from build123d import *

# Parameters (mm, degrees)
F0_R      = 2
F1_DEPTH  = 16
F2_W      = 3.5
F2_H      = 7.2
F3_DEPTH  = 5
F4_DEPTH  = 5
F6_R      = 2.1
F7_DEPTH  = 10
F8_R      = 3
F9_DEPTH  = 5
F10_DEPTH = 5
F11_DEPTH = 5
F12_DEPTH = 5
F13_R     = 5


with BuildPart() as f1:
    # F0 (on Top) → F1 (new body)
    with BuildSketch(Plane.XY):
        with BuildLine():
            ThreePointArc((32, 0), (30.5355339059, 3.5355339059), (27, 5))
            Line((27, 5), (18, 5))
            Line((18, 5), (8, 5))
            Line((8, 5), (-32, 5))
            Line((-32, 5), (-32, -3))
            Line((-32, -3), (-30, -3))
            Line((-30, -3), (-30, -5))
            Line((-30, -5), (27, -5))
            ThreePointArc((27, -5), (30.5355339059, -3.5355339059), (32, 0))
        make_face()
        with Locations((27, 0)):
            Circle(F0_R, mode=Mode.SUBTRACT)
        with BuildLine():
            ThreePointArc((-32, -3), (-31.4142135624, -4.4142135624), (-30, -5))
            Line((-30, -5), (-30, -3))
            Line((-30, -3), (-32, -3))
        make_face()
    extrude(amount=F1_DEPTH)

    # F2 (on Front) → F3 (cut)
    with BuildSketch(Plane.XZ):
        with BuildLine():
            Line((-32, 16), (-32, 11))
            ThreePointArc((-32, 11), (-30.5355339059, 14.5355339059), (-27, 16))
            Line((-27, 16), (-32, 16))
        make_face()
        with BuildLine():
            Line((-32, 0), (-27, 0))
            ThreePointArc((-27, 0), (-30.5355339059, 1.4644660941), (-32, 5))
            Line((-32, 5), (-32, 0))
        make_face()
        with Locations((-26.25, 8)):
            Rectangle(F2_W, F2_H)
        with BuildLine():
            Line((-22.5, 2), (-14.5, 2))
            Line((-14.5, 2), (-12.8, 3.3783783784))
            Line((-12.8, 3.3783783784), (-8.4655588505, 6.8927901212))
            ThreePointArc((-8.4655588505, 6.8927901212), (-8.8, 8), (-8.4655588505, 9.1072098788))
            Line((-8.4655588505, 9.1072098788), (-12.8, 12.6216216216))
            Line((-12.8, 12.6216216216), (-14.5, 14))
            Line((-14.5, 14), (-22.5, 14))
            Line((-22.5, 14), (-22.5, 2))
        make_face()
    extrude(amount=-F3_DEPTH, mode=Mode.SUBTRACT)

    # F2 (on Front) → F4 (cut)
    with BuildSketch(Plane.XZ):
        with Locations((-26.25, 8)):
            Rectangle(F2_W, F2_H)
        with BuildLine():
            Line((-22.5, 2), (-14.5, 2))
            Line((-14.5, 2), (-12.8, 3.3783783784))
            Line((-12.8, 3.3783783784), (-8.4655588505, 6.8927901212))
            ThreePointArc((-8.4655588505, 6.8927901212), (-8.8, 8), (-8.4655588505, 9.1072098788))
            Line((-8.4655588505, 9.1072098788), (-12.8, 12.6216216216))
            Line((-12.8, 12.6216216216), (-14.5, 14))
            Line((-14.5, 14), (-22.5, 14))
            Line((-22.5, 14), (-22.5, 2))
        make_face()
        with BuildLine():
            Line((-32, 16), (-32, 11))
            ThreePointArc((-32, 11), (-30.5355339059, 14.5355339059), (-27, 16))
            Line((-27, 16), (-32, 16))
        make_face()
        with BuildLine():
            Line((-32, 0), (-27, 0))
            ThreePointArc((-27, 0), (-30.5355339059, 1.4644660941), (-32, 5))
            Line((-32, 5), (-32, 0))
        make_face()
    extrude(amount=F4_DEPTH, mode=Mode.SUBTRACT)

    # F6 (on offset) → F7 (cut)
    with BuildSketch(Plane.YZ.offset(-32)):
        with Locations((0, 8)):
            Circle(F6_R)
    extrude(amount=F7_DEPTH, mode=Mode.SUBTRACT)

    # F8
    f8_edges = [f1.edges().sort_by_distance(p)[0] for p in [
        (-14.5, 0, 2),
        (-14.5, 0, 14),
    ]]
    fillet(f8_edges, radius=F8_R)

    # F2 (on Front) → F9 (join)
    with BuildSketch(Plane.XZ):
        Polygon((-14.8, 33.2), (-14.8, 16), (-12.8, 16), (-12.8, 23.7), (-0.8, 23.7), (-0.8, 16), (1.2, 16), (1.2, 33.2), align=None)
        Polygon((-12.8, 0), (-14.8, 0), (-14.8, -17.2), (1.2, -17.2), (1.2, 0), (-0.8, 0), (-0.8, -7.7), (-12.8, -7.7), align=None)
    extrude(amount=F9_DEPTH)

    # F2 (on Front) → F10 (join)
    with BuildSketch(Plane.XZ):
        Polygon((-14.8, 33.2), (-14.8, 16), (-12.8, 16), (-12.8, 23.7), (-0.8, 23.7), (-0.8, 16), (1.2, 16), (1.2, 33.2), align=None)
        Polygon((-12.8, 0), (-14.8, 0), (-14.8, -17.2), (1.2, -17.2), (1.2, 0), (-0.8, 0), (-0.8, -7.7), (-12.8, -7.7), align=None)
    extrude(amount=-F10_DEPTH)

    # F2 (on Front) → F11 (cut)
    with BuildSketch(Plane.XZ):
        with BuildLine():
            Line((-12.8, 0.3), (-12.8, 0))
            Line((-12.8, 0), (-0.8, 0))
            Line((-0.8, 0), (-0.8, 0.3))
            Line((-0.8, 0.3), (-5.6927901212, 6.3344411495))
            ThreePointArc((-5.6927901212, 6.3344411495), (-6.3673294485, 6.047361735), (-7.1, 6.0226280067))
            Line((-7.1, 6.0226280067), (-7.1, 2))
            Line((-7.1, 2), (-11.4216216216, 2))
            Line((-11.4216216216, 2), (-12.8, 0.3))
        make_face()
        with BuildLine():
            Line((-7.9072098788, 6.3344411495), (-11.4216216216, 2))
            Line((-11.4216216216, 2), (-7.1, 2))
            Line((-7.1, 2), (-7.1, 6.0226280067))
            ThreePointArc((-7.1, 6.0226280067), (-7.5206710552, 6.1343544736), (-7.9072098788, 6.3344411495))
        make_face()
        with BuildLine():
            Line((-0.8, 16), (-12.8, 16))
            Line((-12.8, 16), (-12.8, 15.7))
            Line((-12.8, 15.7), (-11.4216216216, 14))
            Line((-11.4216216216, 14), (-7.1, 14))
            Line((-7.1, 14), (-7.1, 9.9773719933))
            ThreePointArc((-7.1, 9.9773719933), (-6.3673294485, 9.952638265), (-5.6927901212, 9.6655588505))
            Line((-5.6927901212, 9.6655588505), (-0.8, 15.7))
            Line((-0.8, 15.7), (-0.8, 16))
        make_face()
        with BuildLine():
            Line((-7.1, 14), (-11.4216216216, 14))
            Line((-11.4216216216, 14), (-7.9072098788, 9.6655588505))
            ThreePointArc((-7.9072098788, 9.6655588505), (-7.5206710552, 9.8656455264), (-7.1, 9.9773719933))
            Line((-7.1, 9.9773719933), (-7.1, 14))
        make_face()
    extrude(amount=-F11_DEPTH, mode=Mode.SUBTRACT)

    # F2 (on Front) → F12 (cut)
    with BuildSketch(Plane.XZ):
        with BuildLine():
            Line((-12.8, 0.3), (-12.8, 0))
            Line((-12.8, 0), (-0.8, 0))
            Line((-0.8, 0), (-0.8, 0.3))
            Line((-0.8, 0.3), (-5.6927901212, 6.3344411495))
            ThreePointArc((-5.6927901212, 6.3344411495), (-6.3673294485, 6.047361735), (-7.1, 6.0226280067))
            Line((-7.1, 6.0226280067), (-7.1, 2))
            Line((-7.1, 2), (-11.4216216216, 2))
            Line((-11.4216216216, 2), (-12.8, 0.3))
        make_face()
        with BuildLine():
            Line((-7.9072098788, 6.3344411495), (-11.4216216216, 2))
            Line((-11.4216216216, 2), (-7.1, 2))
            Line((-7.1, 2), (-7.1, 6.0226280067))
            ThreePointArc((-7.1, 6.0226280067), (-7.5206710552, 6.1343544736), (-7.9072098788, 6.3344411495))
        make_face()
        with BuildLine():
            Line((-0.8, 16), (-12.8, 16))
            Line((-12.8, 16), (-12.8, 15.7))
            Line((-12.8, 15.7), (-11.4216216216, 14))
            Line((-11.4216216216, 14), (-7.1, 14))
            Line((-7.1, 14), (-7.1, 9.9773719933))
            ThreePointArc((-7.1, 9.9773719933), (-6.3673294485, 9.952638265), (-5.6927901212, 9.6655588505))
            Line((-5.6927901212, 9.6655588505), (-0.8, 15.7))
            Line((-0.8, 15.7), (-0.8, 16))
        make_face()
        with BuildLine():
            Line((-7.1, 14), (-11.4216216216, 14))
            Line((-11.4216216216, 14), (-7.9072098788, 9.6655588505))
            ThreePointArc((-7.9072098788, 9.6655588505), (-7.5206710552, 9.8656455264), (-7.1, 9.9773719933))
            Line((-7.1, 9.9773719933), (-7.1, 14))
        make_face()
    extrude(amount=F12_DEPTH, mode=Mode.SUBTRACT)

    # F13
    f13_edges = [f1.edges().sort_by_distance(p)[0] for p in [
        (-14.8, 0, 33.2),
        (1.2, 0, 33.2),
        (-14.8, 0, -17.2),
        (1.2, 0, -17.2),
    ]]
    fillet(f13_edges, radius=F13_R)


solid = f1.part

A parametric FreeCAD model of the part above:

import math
import FreeCAD as App
import Part
import Sketcher
from FreeCAD import Vector


def edges_at(feature, points):
    """Names of the edges that pass closest to the given points."""
    edges = feature.Shape.Edges
    near = lambda p: min(range(len(edges)), key=lambda i: edges[i].distToShape(Part.Vertex(*p))[0])
    return sorted({f"Edge{near(p) + 1}" for p in points})

doc = App.newDocument("Part")
params = doc.addObject("Spreadsheet::Sheet", "Params")
for row, (alias, value) in enumerate([
    ("sketch1_diameter", "4 mm"),
    ("sketch1_radius", "5 mm"),
    ("sketch1_width", "59 mm"),
    ("pad1_length", "16 mm"),
    ("sketch2_radius", "5 mm"),
    ("sketch2_radius2", "2 mm"),
    ("sketch2_width", "8 mm"),
    ("sketch2_height", "12 mm"),
    ("sketch2_width2", "3.5 mm"),
    ("pocket1_length", "5 mm"),
    ("sketch3_radius", "2 mm"),
    ("sketch3_radius2", "5 mm"),
    ("sketch3_width", "8 mm"),
    ("sketch3_height", "12 mm"),
    ("sketch3_width2", "3.5 mm"),
    ("pocket2_length", "5 mm"),
    ("sketch4_diameter", "4.2 mm"),
    ("pocket3_length", "10 mm"),
    ("fillet_radius", "3 mm"),
    ("sketch5_width", "2 mm"),
    ("sketch5_width2", "12 mm"),
    ("sketch5_height", "17.2 mm"),
    ("sketch5_height2", "7.7 mm"),
    ("pad2_length", "5 mm"),
    ("sketch6_width", "2 mm"),
    ("sketch6_width2", "12 mm"),
    ("sketch6_height", "17.2 mm"),
    ("sketch6_height2", "7.7 mm"),
    ("pad3_length", "5 mm"),
    ("sketch7_radius", "2 mm"),
    ("sketch7_width", "12 mm"),
    ("sketch7_height", "0.3 mm"),
    ("pocket4_length", "5 mm"),
    ("sketch8_radius", "2 mm"),
    ("sketch8_width", "12 mm"),
    ("sketch8_height", "0.3 mm"),
    ("pocket5_length", "5 mm"),
    ("fillet2_radius", "5 mm"),
], start=1):
    params.set(f"A{row}", alias)
    params.set(f"B{row}", "=" + value)
    params.setAlias(f"B{row}", alias)

body = doc.addObject("PartDesign::Body", "Body")

# Sketch on XY plane
sketch1 = body.newObject("Sketcher::SketchObject", "Sketch")
sketch1.AttachmentSupport = (doc.getObject("XY_Plane"), [""])
sketch1.MapMode = "FlatFace"
sketch1.addGeometry(Part.ArcOfCircle(Part.Circle(Vector(27, 0, 0), Vector(0, 0, 1), 5), math.radians(0), math.radians(90)), False)
sketch1.addGeometry(Part.LineSegment(Vector(27, 5, 0), Vector(-32, 5, 0)), False)
sketch1.addGeometry(Part.LineSegment(Vector(-32, 5, 0), Vector(-32, -3, 0)), False)
sketch1.addGeometry(Part.ArcOfCircle(Part.Circle(Vector(-30, -3, 0), Vector(0, 0, 1), 2), math.radians(180), math.radians(270)), False)
sketch1.addGeometry(Part.LineSegment(Vector(-30, -5, 0), Vector(27, -5, 0)), False)
sketch1.addGeometry(Part.ArcOfCircle(Part.Circle(Vector(27, 0, 0), Vector(0, 0, 1), 5), math.radians(-90), math.radians(0)), False)
sketch1.addGeometry(Part.Circle(Vector(27, 0, 0), Vector(0, 0, 1), 2), False)
sketch1.addConstraint(Sketcher.Constraint("Tangent", 0, 2, 1, 1))
sketch1.addConstraint(Sketcher.Constraint("Coincident", 1, 2, 2, 1))
sketch1.addConstraint(Sketcher.Constraint("Tangent", 2, 2, 3, 1))
sketch1.addConstraint(Sketcher.Constraint("Tangent", 3, 2, 4, 1))
sketch1.addConstraint(Sketcher.Constraint("Tangent", 4, 2, 5, 1))
sketch1.addConstraint(Sketcher.Constraint("Tangent", 5, 2, 0, 1))
sketch1.addConstraint(Sketcher.Constraint("Horizontal", 1))
sketch1.addConstraint(Sketcher.Constraint("Vertical", 2))
sketch1.addConstraint(Sketcher.Constraint("Horizontal", 4))
sketch1.addConstraint(Sketcher.Constraint("Coincident", 6, 3, 0, 3))
sketch1.addConstraint(Sketcher.Constraint("Equal", 0, 5))
sketch1.addConstraint(Sketcher.Constraint("Equal", 3, 6))
sketch1.addConstraint(Sketcher.Constraint("PointOnObject", 0, 3, -1))
sketch1.addConstraint(Sketcher.Constraint("PointOnObject", 5, 2, -1))
sketch1.addConstraint(Sketcher.Constraint("Diameter", 6, 4.0))
sketch1.addConstraint(Sketcher.Constraint("Radius", 0, 5.0))
sketch1.addConstraint(Sketcher.Constraint("DistanceX", 1, 2, 1, 1, 59.0))
sketch1.addConstraint(Sketcher.Constraint("DistanceX", -1, 1, 0, 3, 27.0))
sketch1.setExpression("Constraints[14]", "Params.sketch1_diameter")
sketch1.setExpression("Constraints[15]", "Params.sketch1_radius")
sketch1.setExpression("Constraints[16]", "Params.sketch1_width")
pad1 = body.newObject("PartDesign::Pad", "Pad")
pad1.Profile = sketch1
pad1.setExpression("Length", "Params.pad1_length")

# Sketch on XZ plane
sketch2 = body.newObject("Sketcher::SketchObject", "Sketch001")
sketch2.AttachmentSupport = (doc.getObject("XZ_Plane"), [""])
sketch2.MapMode = "FlatFace"
sketch2.addGeometry(Part.LineSegment(Vector(-32, 16, 0), Vector(-32, 11, 0)), False)
sketch2.addGeometry(Part.ArcOfCircle(Part.Circle(Vector(-27, 11, 0), Vector(0, 0, 1), 5), math.radians(90), math.radians(180)), False)
sketch2.addGeometry(Part.LineSegment(Vector(-27, 16, 0), Vector(-32, 16, 0)), False)
sketch2.addGeometry(Part.LineSegment(Vector(-32, 0, 0), Vector(-27, 0, 0)), False)
sketch2.addGeometry(Part.ArcOfCircle(Part.Circle(Vector(-27, 5, 0), Vector(0, 0, 1), 5), math.radians(180), math.radians(270)), False)
sketch2.addGeometry(Part.LineSegment(Vector(-32, 5, 0), Vector(-32, 0, 0)), False)
sketch2.addGeometry(Part.LineSegment(Vector(-28, 11.6, 0), Vector(-28, 4.4, 0)), False)
sketch2.addGeometry(Part.LineSegment(Vector(-28, 4.4, 0), Vector(-24.5, 4.4, 0)), False)
sketch2.addGeometry(Part.LineSegment(Vector(-24.5, 4.4, 0), Vector(-24.5, 11.6, 0)), False)
sketch2.addGeometry(Part.LineSegment(Vector(-24.5, 11.6, 0), Vector(-28, 11.6, 0)), False)
sketch2.addGeometry(Part.LineSegment(Vector(-22.5, 2, 0), Vector(-14.5, 2, 0)), False)
sketch2.addGeometry(Part.LineSegment(Vector(-14.5, 2, 0), Vector(-12.8, 3.378378, 0)), False)
sketch2.addGeometry(Part.LineSegment(Vector(-12.8, 3.378378, 0), Vector(-8.465559, 6.89279, 0)), False)
sketch2.addGeometry(Part.ArcOfCircle(Part.Circle(Vector(-6.8, 8, 0), Vector(0, 0, 1), 2), math.radians(146.38532), math.radians(213.61468)), False)
sketch2.addGeometry(Part.LineSegment(Vector(-8.465559, 9.10721, 0), Vector(-12.8, 12.621622, 0)), False)
sketch2.addGeometry(Part.LineSegment(Vector(-12.8, 12.621622, 0), Vector(-14.5, 14, 0)), False)
sketch2.addGeometry(Part.LineSegment(Vector(-14.5, 14, 0), Vector(-22.5, 14, 0)), False)
sketch2.addGeometry(Part.LineSegment(Vector(-22.5, 14, 0), Vector(-22.5, 2, 0)), False)
sketch2.addConstraint(Sketcher.Constraint("Tangent", 0, 2, 1, 2))
sketch2.addConstraint(Sketcher.Constraint("Tangent", 1, 1, 2, 1))
sketch2.addConstraint(Sketcher.Constraint("Coincident", 2, 2, 0, 1))
sketch2.addConstraint(Sketcher.Constraint("Tangent", 3, 2, 4, 2))
sketch2.addConstraint(Sketcher.Constraint("Tangent", 4, 1, 5, 1))
sketch2.addConstraint(Sketcher.Constraint("Coincident", 5, 2, 3, 1))
sketch2.addConstraint(Sketcher.Constraint("Coincident", 6, 2, 7, 1))
sketch2.addConstraint(Sketcher.Constraint("Coincident", 7, 2, 8, 1))
sketch2.addConstraint(Sketcher.Constraint("Coincident", 8, 2, 9, 1))
sketch2.addConstraint(Sketcher.Constraint("Coincident", 9, 2, 6, 1))
sketch2.addConstraint(Sketcher.Constraint("Coincident", 10, 2, 11, 1))
sketch2.addConstraint(Sketcher.Constraint("Coincident", 11, 2, 12, 1))
sketch2.addConstraint(Sketcher.Constraint("Coincident", 12, 2, 13, 2))
sketch2.addConstraint(Sketcher.Constraint("Coincident", 13, 1, 14, 1))
sketch2.addConstraint(Sketcher.Constraint("Coincident", 14, 2, 15, 1))
sketch2.addConstraint(Sketcher.Constraint("Coincident", 15, 2, 16, 1))
sketch2.addConstraint(Sketcher.Constraint("Coincident", 16, 2, 17, 1))
sketch2.addConstraint(Sketcher.Constraint("Coincident", 17, 2, 10, 1))
sketch2.addConstraint(Sketcher.Constraint("Vertical", 0))
sketch2.addConstraint(Sketcher.Constraint("Horizontal", 2))
sketch2.addConstraint(Sketcher.Constraint("Horizontal", 3))
sketch2.addConstraint(Sketcher.Constraint("Vertical", 5))
sketch2.addConstraint(Sketcher.Constraint("Vertical", 6))
sketch2.addConstraint(Sketcher.Constraint("Horizontal", 7))
sketch2.addConstraint(Sketcher.Constraint("Vertical", 8))
sketch2.addConstraint(Sketcher.Constraint("Horizontal", 9))
sketch2.addConstraint(Sketcher.Constraint("Horizontal", 10))
sketch2.addConstraint(Sketcher.Constraint("Horizontal", 16))
sketch2.addConstraint(Sketcher.Constraint("Vertical", 17))
sketch2.addConstraint(Sketcher.Constraint("Equal", 1, 4))
sketch2.addConstraint(Sketcher.Constraint("PointOnObject", 3, 2, -1))
sketch2.addConstraint(Sketcher.Constraint("Parallel", 11, 12))
sketch2.addConstraint(Sketcher.Constraint("Parallel", 14, 15))
sketch2.addConstraint(Sketcher.Constraint("Vertical", 1, 3, 4, 3))
sketch2.addConstraint(Sketcher.Constraint("Vertical", 12, 2, 13, 1))
sketch2.addConstraint(Sketcher.Constraint("Vertical", 11, 2, 14, 2))
sketch2.addConstraint(Sketcher.Constraint("Vertical", 10, 2, 15, 2))
sketch2.addConstraint(Sketcher.Constraint("Equal", 12, 14))
sketch2.addConstraint(Sketcher.Constraint("Radius", 1, 5.0))
sketch2.addConstraint(Sketcher.Constraint("Radius", 13, 2.0))
sketch2.addConstraint(Sketcher.Constraint("DistanceX", 10, 1, 10, 2, 8.0))
sketch2.addConstraint(Sketcher.Constraint("DistanceY", 17, 2, 17, 1, 12.0))
sketch2.addConstraint(Sketcher.Constraint("DistanceX", 7, 1, 7, 2, 3.5))
sketch2.addConstraint(Sketcher.Constraint("DistanceY", 6, 2, 6, 1, 7.2))
sketch2.addConstraint(Sketcher.Constraint("DistanceX", 1, 3, -1, 1, 27.0))
sketch2.addConstraint(Sketcher.Constraint("DistanceY", -1, 1, 1, 3, 11.0))
sketch2.addConstraint(Sketcher.Constraint("DistanceY", -1, 1, 13, 3, 8.0))
sketch2.addConstraint(Sketcher.Constraint("DistanceX", 6, 2, -1, 1, 28.0))
sketch2.addConstraint(Sketcher.Constraint("DistanceX", 7, 2, 10, 2, 10.0))
sketch2.addConstraint(Sketcher.Constraint("DistanceX", 11, 2, 13, 3, 6.0))
sketch2.addConstraint(Sketcher.Constraint("DistanceX", 13, 3, -1, 1, 6.8))
sketch2.addConstraint(Sketcher.Constraint("DistanceY", -1, 1, 6, 2, 4.4))
sketch2.addConstraint(Sketcher.Constraint("Distance", 11, 2.18859))
sketch2.setExpression("Constraints[38]", "Params.sketch2_radius")
sketch2.setExpression("Constraints[39]", "Params.sketch2_radius2")
sketch2.setExpression("Constraints[40]", "Params.sketch2_width")
sketch2.setExpression("Constraints[41]", "Params.sketch2_height")
sketch2.setExpression("Constraints[42]", "Params.sketch2_width2")
pocket1 = body.newObject("PartDesign::Pocket", "Pocket")
pocket1.Profile = sketch2
pocket1.setExpression("Length", "Params.pocket1_length")

# Sketch on XZ plane
sketch3 = body.newObject("Sketcher::SketchObject", "Sketch002")
sketch3.AttachmentSupport = (doc.getObject("XZ_Plane"), [""])
sketch3.MapMode = "FlatFace"
sketch3.addGeometry(Part.LineSegment(Vector(-28, 11.6, 0), Vector(-28, 4.4, 0)), False)
sketch3.addGeometry(Part.LineSegment(Vector(-28, 4.4, 0), Vector(-24.5, 4.4, 0)), False)
sketch3.addGeometry(Part.LineSegment(Vector(-24.5, 4.4, 0), Vector(-24.5, 11.6, 0)), False)
sketch3.addGeometry(Part.LineSegment(Vector(-24.5, 11.6, 0), Vector(-28, 11.6, 0)), False)
sketch3.addGeometry(Part.LineSegment(Vector(-22.5, 2, 0), Vector(-14.5, 2, 0)), False)
sketch3.addGeometry(Part.LineSegment(Vector(-14.5, 2, 0), Vector(-12.8, 3.378378, 0)), False)
sketch3.addGeometry(Part.LineSegment(Vector(-12.8, 3.378378, 0), Vector(-8.465559, 6.89279, 0)), False)
sketch3.addGeometry(Part.ArcOfCircle(Part.Circle(Vector(-6.8, 8, 0), Vector(0, 0, 1), 2), math.radians(146.38532), math.radians(213.61468)), False)
sketch3.addGeometry(Part.LineSegment(Vector(-8.465559, 9.10721, 0), Vector(-12.8, 12.621622, 0)), False)
sketch3.addGeometry(Part.LineSegment(Vector(-12.8, 12.621622, 0), Vector(-14.5, 14, 0)), False)
sketch3.addGeometry(Part.LineSegment(Vector(-14.5, 14, 0), Vector(-22.5, 14, 0)), False)
sketch3.addGeometry(Part.LineSegment(Vector(-22.5, 14, 0), Vector(-22.5, 2, 0)), False)
sketch3.addGeometry(Part.LineSegment(Vector(-32, 16, 0), Vector(-32, 11, 0)), False)
sketch3.addGeometry(Part.ArcOfCircle(Part.Circle(Vector(-27, 11, 0), Vector(0, 0, 1), 5), math.radians(90), math.radians(180)), False)
sketch3.addGeometry(Part.LineSegment(Vector(-27, 16, 0), Vector(-32, 16, 0)), False)
sketch3.addGeometry(Part.LineSegment(Vector(-32, 0, 0), Vector(-27, 0, 0)), False)
sketch3.addGeometry(Part.ArcOfCircle(Part.Circle(Vector(-27, 5, 0), Vector(0, 0, 1), 5), math.radians(180), math.radians(270)), False)
sketch3.addGeometry(Part.LineSegment(Vector(-32, 5, 0), Vector(-32, 0, 0)), False)
sketch3.addConstraint(Sketcher.Constraint("Coincident", 0, 2, 1, 1))
sketch3.addConstraint(Sketcher.Constraint("Coincident", 1, 2, 2, 1))
sketch3.addConstraint(Sketcher.Constraint("Coincident", 2, 2, 3, 1))
sketch3.addConstraint(Sketcher.Constraint("Coincident", 3, 2, 0, 1))
sketch3.addConstraint(Sketcher.Constraint("Coincident", 4, 2, 5, 1))
sketch3.addConstraint(Sketcher.Constraint("Coincident", 5, 2, 6, 1))
sketch3.addConstraint(Sketcher.Constraint("Coincident", 6, 2, 7, 2))
sketch3.addConstraint(Sketcher.Constraint("Coincident", 7, 1, 8, 1))
sketch3.addConstraint(Sketcher.Constraint("Coincident", 8, 2, 9, 1))
sketch3.addConstraint(Sketcher.Constraint("Coincident", 9, 2, 10, 1))
sketch3.addConstraint(Sketcher.Constraint("Coincident", 10, 2, 11, 1))
sketch3.addConstraint(Sketcher.Constraint("Coincident", 11, 2, 4, 1))
sketch3.addConstraint(Sketcher.Constraint("Tangent", 12, 2, 13, 2))
sketch3.addConstraint(Sketcher.Constraint("Tangent", 13, 1, 14, 1))
sketch3.addConstraint(Sketcher.Constraint("Coincident", 14, 2, 12, 1))
sketch3.addConstraint(Sketcher.Constraint("Tangent", 15, 2, 16, 2))
sketch3.addConstraint(Sketcher.Constraint("Tangent", 16, 1, 17, 1))
sketch3.addConstraint(Sketcher.Constraint("Coincident", 17, 2, 15, 1))
sketch3.addConstraint(Sketcher.Constraint("Vertical", 0))
sketch3.addConstraint(Sketcher.Constraint("Horizontal", 1))
sketch3.addConstraint(Sketcher.Constraint("Vertical", 2))
sketch3.addConstraint(Sketcher.Constraint("Horizontal", 3))
sketch3.addConstraint(Sketcher.Constraint("Horizontal", 4))
sketch3.addConstraint(Sketcher.Constraint("Horizontal", 10))
sketch3.addConstraint(Sketcher.Constraint("Vertical", 11))
sketch3.addConstraint(Sketcher.Constraint("Vertical", 12))
sketch3.addConstraint(Sketcher.Constraint("Horizontal", 14))
sketch3.addConstraint(Sketcher.Constraint("Horizontal", 15))
sketch3.addConstraint(Sketcher.Constraint("Vertical", 17))
sketch3.addConstraint(Sketcher.Constraint("Equal", 13, 16))
sketch3.addConstraint(Sketcher.Constraint("PointOnObject", 15, 2, -1))
sketch3.addConstraint(Sketcher.Constraint("Parallel", 5, 6))
sketch3.addConstraint(Sketcher.Constraint("Parallel", 8, 9))
sketch3.addConstraint(Sketcher.Constraint("Vertical", 13, 3, 16, 3))
sketch3.addConstraint(Sketcher.Constraint("Vertical", 6, 2, 7, 1))
sketch3.addConstraint(Sketcher.Constraint("Vertical", 5, 2, 8, 2))
sketch3.addConstraint(Sketcher.Constraint("Vertical", 4, 2, 9, 2))
sketch3.addConstraint(Sketcher.Constraint("Equal", 6, 8))
sketch3.addConstraint(Sketcher.Constraint("Radius", 7, 2.0))
sketch3.addConstraint(Sketcher.Constraint("Radius", 13, 5.0))
sketch3.addConstraint(Sketcher.Constraint("DistanceX", 4, 1, 4, 2, 8.0))
sketch3.addConstraint(Sketcher.Constraint("DistanceY", 11, 2, 11, 1, 12.0))
sketch3.addConstraint(Sketcher.Constraint("DistanceX", 1, 1, 1, 2, 3.5))
sketch3.addConstraint(Sketcher.Constraint("DistanceY", 0, 2, 0, 1, 7.2))
sketch3.addConstraint(Sketcher.Constraint("DistanceY", -1, 1, 7, 3, 8.0))
sketch3.addConstraint(Sketcher.Constraint("DistanceX", 13, 3, -1, 1, 27.0))
sketch3.addConstraint(Sketcher.Constraint("DistanceY", -1, 1, 13, 3, 11.0))
sketch3.addConstraint(Sketcher.Constraint("DistanceX", 0, 2, -1, 1, 28.0))
sketch3.addConstraint(Sketcher.Constraint("DistanceX", 1, 2, 4, 2, 10.0))
sketch3.addConstraint(Sketcher.Constraint("DistanceX", 5, 2, 7, 3, 6.0))
sketch3.addConstraint(Sketcher.Constraint("DistanceX", 7, 3, -1, 1, 6.8))
sketch3.addConstraint(Sketcher.Constraint("DistanceY", -1, 1, 0, 2, 4.4))
sketch3.addConstraint(Sketcher.Constraint("Distance", 5, 2.18859))
sketch3.setExpression("Constraints[38]", "Params.sketch3_radius")
sketch3.setExpression("Constraints[39]", "Params.sketch3_radius2")
sketch3.setExpression("Constraints[40]", "Params.sketch3_width")
sketch3.setExpression("Constraints[41]", "Params.sketch3_height")
sketch3.setExpression("Constraints[42]", "Params.sketch3_width2")
pocket2 = body.newObject("PartDesign::Pocket", "Pocket001")
pocket2.Profile = sketch3
pocket2.setExpression("Length", "Params.pocket2_length")
pocket2.Reversed = True

# Sketch on YZ plane
sketch4 = body.newObject("Sketcher::SketchObject", "Sketch003")
sketch4.AttachmentSupport = (doc.getObject("YZ_Plane"), [""])
sketch4.MapMode = "FlatFace"
sketch4.AttachmentOffset = App.Placement(Vector(0, 0, -32), App.Rotation())
sketch4.addGeometry(Part.Circle(Vector(0, 8, 0), Vector(0, 0, 1), 2.1), False)
sketch4.addConstraint(Sketcher.Constraint("PointOnObject", 0, 3, -2))
sketch4.addConstraint(Sketcher.Constraint("Diameter", 0, 4.2))
sketch4.addConstraint(Sketcher.Constraint("DistanceY", -1, 1, 0, 3, 8.0))
sketch4.setExpression("Constraints[1]", "Params.sketch4_diameter")
pocket3 = body.newObject("PartDesign::Pocket", "Pocket002")
pocket3.Profile = sketch4
pocket3.setExpression("Length", "Params.pocket3_length")
pocket3.Reversed = True
doc.recompute()

fillet = body.newObject("PartDesign::Fillet", "Fillet")
fillet.Base = (pocket3, edges_at(pocket3, [(-14.5, 0, 2), (-14.5, 0, 14)]))
fillet.setExpression("Radius", "Params.fillet_radius")

# Sketch on XZ plane
sketch5 = body.newObject("Sketcher::SketchObject", "Sketch004")
sketch5.AttachmentSupport = (doc.getObject("XZ_Plane"), [""])
sketch5.MapMode = "FlatFace"
sketch5.addGeometry(Part.LineSegment(Vector(-14.8, 33.2, 0), Vector(-14.8, 16, 0)), False)
sketch5.addGeometry(Part.LineSegment(Vector(-14.8, 16, 0), Vector(-12.8, 16, 0)), False)
sketch5.addGeometry(Part.LineSegment(Vector(-12.8, 16, 0), Vector(-12.8, 23.7, 0)), False)
sketch5.addGeometry(Part.LineSegment(Vector(-12.8, 23.7, 0), Vector(-0.8, 23.7, 0)), False)
sketch5.addGeometry(Part.LineSegment(Vector(-0.8, 23.7, 0), Vector(-0.8, 16, 0)), False)
sketch5.addGeometry(Part.LineSegment(Vector(-0.8, 16, 0), Vector(1.2, 16, 0)), False)
sketch5.addGeometry(Part.LineSegment(Vector(1.2, 16, 0), Vector(1.2, 33.2, 0)), False)
sketch5.addGeometry(Part.LineSegment(Vector(1.2, 33.2, 0), Vector(-14.8, 33.2, 0)), False)
sketch5.addGeometry(Part.LineSegment(Vector(-12.8, 0, 0), Vector(-14.8, 0, 0)), False)
sketch5.addGeometry(Part.LineSegment(Vector(-14.8, 0, 0), Vector(-14.8, -17.2, 0)), False)
sketch5.addGeometry(Part.LineSegment(Vector(-14.8, -17.2, 0), Vector(1.2, -17.2, 0)), False)
sketch5.addGeometry(Part.LineSegment(Vector(1.2, -17.2, 0), Vector(1.2, 0, 0)), False)
sketch5.addGeometry(Part.LineSegment(Vector(1.2, 0, 0), Vector(-0.8, 0, 0)), False)
sketch5.addGeometry(Part.LineSegment(Vector(-0.8, 0, 0), Vector(-0.8, -7.7, 0)), False)
sketch5.addGeometry(Part.LineSegment(Vector(-0.8, -7.7, 0), Vector(-12.8, -7.7, 0)), False)
sketch5.addGeometry(Part.LineSegment(Vector(-12.8, -7.7, 0), Vector(-12.8, 0, 0)), False)
sketch5.addConstraint(Sketcher.Constraint("Coincident", 0, 2, 1, 1))
sketch5.addConstraint(Sketcher.Constraint("Coincident", 1, 2, 2, 1))
sketch5.addConstraint(Sketcher.Constraint("Coincident", 2, 2, 3, 1))
sketch5.addConstraint(Sketcher.Constraint("Coincident", 3, 2, 4, 1))
sketch5.addConstraint(Sketcher.Constraint("Coincident", 4, 2, 5, 1))
sketch5.addConstraint(Sketcher.Constraint("Coincident", 5, 2, 6, 1))
sketch5.addConstraint(Sketcher.Constraint("Coincident", 6, 2, 7, 1))
sketch5.addConstraint(Sketcher.Constraint("Coincident", 7, 2, 0, 1))
sketch5.addConstraint(Sketcher.Constraint("Coincident", 8, 2, 9, 1))
sketch5.addConstraint(Sketcher.Constraint("Coincident", 9, 2, 10, 1))
sketch5.addConstraint(Sketcher.Constraint("Coincident", 10, 2, 11, 1))
sketch5.addConstraint(Sketcher.Constraint("Coincident", 11, 2, 12, 1))
sketch5.addConstraint(Sketcher.Constraint("Coincident", 12, 2, 13, 1))
sketch5.addConstraint(Sketcher.Constraint("Coincident", 13, 2, 14, 1))
sketch5.addConstraint(Sketcher.Constraint("Coincident", 14, 2, 15, 1))
sketch5.addConstraint(Sketcher.Constraint("Coincident", 15, 2, 8, 1))
sketch5.addConstraint(Sketcher.Constraint("Vertical", 0))
sketch5.addConstraint(Sketcher.Constraint("Horizontal", 1))
sketch5.addConstraint(Sketcher.Constraint("Vertical", 2))
sketch5.addConstraint(Sketcher.Constraint("Horizontal", 3))
sketch5.addConstraint(Sketcher.Constraint("Vertical", 4))
sketch5.addConstraint(Sketcher.Constraint("Horizontal", 5))
sketch5.addConstraint(Sketcher.Constraint("Vertical", 6))
sketch5.addConstraint(Sketcher.Constraint("Horizontal", 7))
sketch5.addConstraint(Sketcher.Constraint("Horizontal", 8))
sketch5.addConstraint(Sketcher.Constraint("Vertical", 9))
sketch5.addConstraint(Sketcher.Constraint("Horizontal", 10))
sketch5.addConstraint(Sketcher.Constraint("Vertical", 11))
sketch5.addConstraint(Sketcher.Constraint("Horizontal", 12))
sketch5.addConstraint(Sketcher.Constraint("Vertical", 13))
sketch5.addConstraint(Sketcher.Constraint("Horizontal", 14))
sketch5.addConstraint(Sketcher.Constraint("Vertical", 15))
sketch5.addConstraint(Sketcher.Constraint("PointOnObject", 8, 2, -1))
sketch5.addConstraint(Sketcher.Constraint("PointOnObject", 11, 2, -1))
sketch5.addConstraint(Sketcher.Constraint("Horizontal", 1, 2, 4, 2))
sketch5.addConstraint(Sketcher.Constraint("Vertical", 7, 2, 8, 2))
sketch5.addConstraint(Sketcher.Constraint("Vertical", 6, 2, 10, 2))
sketch5.addConstraint(Sketcher.Constraint("Vertical", 4, 2, 12, 2))
sketch5.addConstraint(Sketcher.Constraint("Vertical", 2, 2, 14, 2))
sketch5.addConstraint(Sketcher.Constraint("Equal", 1, 5))
sketch5.addConstraint(Sketcher.Constraint("Equal", 6, 9))
sketch5.addConstraint(Sketcher.Constraint("Equal", 4, 13))
sketch5.addConstraint(Sketcher.Constraint("DistanceX", 1, 1, 1, 2, 2.0))
sketch5.addConstraint(Sketcher.Constraint("DistanceX", 3, 1, 3, 2, 12.0))
sketch5.addConstraint(Sketcher.Constraint("DistanceY", 0, 2, 0, 1, 17.2))
sketch5.addConstraint(Sketcher.Constraint("DistanceY", 2, 1, 2, 2, 7.7))
sketch5.addConstraint(Sketcher.Constraint("DistanceY", -1, 1, 0, 2, 16.0))
sketch5.addConstraint(Sketcher.Constraint("DistanceX", 0, 2, -1, 1, 14.8))
sketch5.setExpression("Constraints[42]", "Params.sketch5_width")
sketch5.setExpression("Constraints[43]", "Params.sketch5_width2")
sketch5.setExpression("Constraints[44]", "Params.sketch5_height")
sketch5.setExpression("Constraints[45]", "Params.sketch5_height2")
pad2 = body.newObject("PartDesign::Pad", "Pad001")
pad2.Profile = sketch5
pad2.setExpression("Length", "Params.pad2_length")

# Sketch on XZ plane
sketch6 = body.newObject("Sketcher::SketchObject", "Sketch005")
sketch6.AttachmentSupport = (doc.getObject("XZ_Plane"), [""])
sketch6.MapMode = "FlatFace"
sketch6.addGeometry(Part.LineSegment(Vector(-14.8, 33.2, 0), Vector(-14.8, 16, 0)), False)
sketch6.addGeometry(Part.LineSegment(Vector(-14.8, 16, 0), Vector(-12.8, 16, 0)), False)
sketch6.addGeometry(Part.LineSegment(Vector(-12.8, 16, 0), Vector(-12.8, 23.7, 0)), False)
sketch6.addGeometry(Part.LineSegment(Vector(-12.8, 23.7, 0), Vector(-0.8, 23.7, 0)), False)
sketch6.addGeometry(Part.LineSegment(Vector(-0.8, 23.7, 0), Vector(-0.8, 16, 0)), False)
sketch6.addGeometry(Part.LineSegment(Vector(-0.8, 16, 0), Vector(1.2, 16, 0)), False)
sketch6.addGeometry(Part.LineSegment(Vector(1.2, 16, 0), Vector(1.2, 33.2, 0)), False)
sketch6.addGeometry(Part.LineSegment(Vector(1.2, 33.2, 0), Vector(-14.8, 33.2, 0)), False)
sketch6.addGeometry(Part.LineSegment(Vector(-12.8, 0, 0), Vector(-14.8, 0, 0)), False)
sketch6.addGeometry(Part.LineSegment(Vector(-14.8, 0, 0), Vector(-14.8, -17.2, 0)), False)
sketch6.addGeometry(Part.LineSegment(Vector(-14.8, -17.2, 0), Vector(1.2, -17.2, 0)), False)
sketch6.addGeometry(Part.LineSegment(Vector(1.2, -17.2, 0), Vector(1.2, 0, 0)), False)
sketch6.addGeometry(Part.LineSegment(Vector(1.2, 0, 0), Vector(-0.8, 0, 0)), False)
sketch6.addGeometry(Part.LineSegment(Vector(-0.8, 0, 0), Vector(-0.8, -7.7, 0)), False)
sketch6.addGeometry(Part.LineSegment(Vector(-0.8, -7.7, 0), Vector(-12.8, -7.7, 0)), False)
sketch6.addGeometry(Part.LineSegment(Vector(-12.8, -7.7, 0), Vector(-12.8, 0, 0)), False)
sketch6.addConstraint(Sketcher.Constraint("Coincident", 0, 2, 1, 1))
sketch6.addConstraint(Sketcher.Constraint("Coincident", 1, 2, 2, 1))
sketch6.addConstraint(Sketcher.Constraint("Coincident", 2, 2, 3, 1))
sketch6.addConstraint(Sketcher.Constraint("Coincident", 3, 2, 4, 1))
sketch6.addConstraint(Sketcher.Constraint("Coincident", 4, 2, 5, 1))
sketch6.addConstraint(Sketcher.Constraint("Coincident", 5, 2, 6, 1))
sketch6.addConstraint(Sketcher.Constraint("Coincident", 6, 2, 7, 1))
sketch6.addConstraint(Sketcher.Constraint("Coincident", 7, 2, 0, 1))
sketch6.addConstraint(Sketcher.Constraint("Coincident", 8, 2, 9, 1))
sketch6.addConstraint(Sketcher.Constraint("Coincident", 9, 2, 10, 1))
sketch6.addConstraint(Sketcher.Constraint("Coincident", 10, 2, 11, 1))
sketch6.addConstraint(Sketcher.Constraint("Coincident", 11, 2, 12, 1))
sketch6.addConstraint(Sketcher.Constraint("Coincident", 12, 2, 13, 1))
sketch6.addConstraint(Sketcher.Constraint("Coincident", 13, 2, 14, 1))
sketch6.addConstraint(Sketcher.Constraint("Coincident", 14, 2, 15, 1))
sketch6.addConstraint(Sketcher.Constraint("Coincident", 15, 2, 8, 1))
sketch6.addConstraint(Sketcher.Constraint("Vertical", 0))
sketch6.addConstraint(Sketcher.Constraint("Horizontal", 1))
sketch6.addConstraint(Sketcher.Constraint("Vertical", 2))
sketch6.addConstraint(Sketcher.Constraint("Horizontal", 3))
sketch6.addConstraint(Sketcher.Constraint("Vertical", 4))
sketch6.addConstraint(Sketcher.Constraint("Horizontal", 5))
sketch6.addConstraint(Sketcher.Constraint("Vertical", 6))
sketch6.addConstraint(Sketcher.Constraint("Horizontal", 7))
sketch6.addConstraint(Sketcher.Constraint("Horizontal", 8))
sketch6.addConstraint(Sketcher.Constraint("Vertical", 9))
sketch6.addConstraint(Sketcher.Constraint("Horizontal", 10))
sketch6.addConstraint(Sketcher.Constraint("Vertical", 11))
sketch6.addConstraint(Sketcher.Constraint("Horizontal", 12))
sketch6.addConstraint(Sketcher.Constraint("Vertical", 13))
sketch6.addConstraint(Sketcher.Constraint("Horizontal", 14))
sketch6.addConstraint(Sketcher.Constraint("Vertical", 15))
sketch6.addConstraint(Sketcher.Constraint("PointOnObject", 8, 2, -1))
sketch6.addConstraint(Sketcher.Constraint("PointOnObject", 11, 2, -1))
sketch6.addConstraint(Sketcher.Constraint("Horizontal", 1, 2, 4, 2))
sketch6.addConstraint(Sketcher.Constraint("Vertical", 7, 2, 8, 2))
sketch6.addConstraint(Sketcher.Constraint("Vertical", 6, 2, 10, 2))
sketch6.addConstraint(Sketcher.Constraint("Vertical", 4, 2, 12, 2))
sketch6.addConstraint(Sketcher.Constraint("Vertical", 2, 2, 14, 2))
sketch6.addConstraint(Sketcher.Constraint("Equal", 1, 5))
sketch6.addConstraint(Sketcher.Constraint("Equal", 6, 9))
sketch6.addConstraint(Sketcher.Constraint("Equal", 4, 13))
sketch6.addConstraint(Sketcher.Constraint("DistanceX", 1, 1, 1, 2, 2.0))
sketch6.addConstraint(Sketcher.Constraint("DistanceX", 3, 1, 3, 2, 12.0))
sketch6.addConstraint(Sketcher.Constraint("DistanceY", 0, 2, 0, 1, 17.2))
sketch6.addConstraint(Sketcher.Constraint("DistanceY", 2, 1, 2, 2, 7.7))
sketch6.addConstraint(Sketcher.Constraint("DistanceY", -1, 1, 0, 2, 16.0))
sketch6.addConstraint(Sketcher.Constraint("DistanceX", 0, 2, -1, 1, 14.8))
sketch6.setExpression("Constraints[42]", "Params.sketch6_width")
sketch6.setExpression("Constraints[43]", "Params.sketch6_width2")
sketch6.setExpression("Constraints[44]", "Params.sketch6_height")
sketch6.setExpression("Constraints[45]", "Params.sketch6_height2")
pad3 = body.newObject("PartDesign::Pad", "Pad002")
pad3.Profile = sketch6
pad3.setExpression("Length", "Params.pad3_length")
pad3.Reversed = True

# Sketch on XZ plane
sketch7 = body.newObject("Sketcher::SketchObject", "Sketch006")
sketch7.AttachmentSupport = (doc.getObject("XZ_Plane"), [""])
sketch7.MapMode = "FlatFace"
sketch7.addGeometry(Part.LineSegment(Vector(-12.8, 0.3, 0), Vector(-12.8, 0, 0)), False)
sketch7.addGeometry(Part.LineSegment(Vector(-12.8, 0, 0), Vector(-0.8, 0, 0)), False)
sketch7.addGeometry(Part.LineSegment(Vector(-0.8, 0, 0), Vector(-0.8, 0.3, 0)), False)
sketch7.addGeometry(Part.LineSegment(Vector(-0.8, 0.3, 0), Vector(-5.69279, 6.334441, 0)), False)
sketch7.addGeometry(Part.ArcOfCircle(Part.Circle(Vector(-6.8, 8, 0), Vector(0, 0, 1), 2), math.radians(-98.626927), math.radians(-56.38532)), False)
sketch7.addGeometry(Part.ArcOfCircle(Part.Circle(Vector(-6.8, 8, 0), Vector(0, 0, 1), 2), math.radians(-123.61468), math.radians(-98.626927)), False)
sketch7.addGeometry(Part.LineSegment(Vector(-7.90721, 6.334441, 0), Vector(-11.421622, 2, 0)), False)
sketch7.addGeometry(Part.LineSegment(Vector(-11.421622, 2, 0), Vector(-12.8, 0.3, 0)), False)
sketch7.addGeometry(Part.LineSegment(Vector(-0.8, 16, 0), Vector(-12.8, 16, 0)), False)
sketch7.addGeometry(Part.LineSegment(Vector(-12.8, 16, 0), Vector(-12.8, 15.7, 0)), False)
sketch7.addGeometry(Part.LineSegment(Vector(-12.8, 15.7, 0), Vector(-11.421622, 14, 0)), False)
sketch7.addGeometry(Part.LineSegment(Vector(-11.421622, 14, 0), Vector(-7.90721, 9.665559, 0)), False)
sketch7.addGeometry(Part.ArcOfCircle(Part.Circle(Vector(-6.8, 8, 0), Vector(0, 0, 1), 2), math.radians(98.626927), math.radians(123.61468)), False)
sketch7.addGeometry(Part.ArcOfCircle(Part.Circle(Vector(-6.8, 8, 0), Vector(0, 0, 1), 2), math.radians(56.38532), math.radians(98.626927)), False)
sketch7.addGeometry(Part.LineSegment(Vector(-5.69279, 9.665559, 0), Vector(-0.8, 15.7, 0)), False)
sketch7.addGeometry(Part.LineSegment(Vector(-0.8, 15.7, 0), Vector(-0.8, 16, 0)), False)
sketch7.addConstraint(Sketcher.Constraint("Coincident", 0, 2, 1, 1))
sketch7.addConstraint(Sketcher.Constraint("Coincident", 1, 2, 2, 1))
sketch7.addConstraint(Sketcher.Constraint("Coincident", 2, 2, 3, 1))
sketch7.addConstraint(Sketcher.Constraint("Coincident", 3, 2, 4, 2))
sketch7.addConstraint(Sketcher.Constraint("Tangent", 4, 1, 5, 2))
sketch7.addConstraint(Sketcher.Constraint("Coincident", 5, 1, 6, 1))
sketch7.addConstraint(Sketcher.Constraint("Coincident", 6, 2, 7, 1))
sketch7.addConstraint(Sketcher.Constraint("Coincident", 7, 2, 0, 1))
sketch7.addConstraint(Sketcher.Constraint("Coincident", 8, 2, 9, 1))
sketch7.addConstraint(Sketcher.Constraint("Coincident", 9, 2, 10, 1))
sketch7.addConstraint(Sketcher.Constraint("Coincident", 10, 2, 11, 1))
sketch7.addConstraint(Sketcher.Constraint("Coincident", 11, 2, 12, 2))
sketch7.addConstraint(Sketcher.Constraint("Tangent", 12, 1, 13, 2))
sketch7.addConstraint(Sketcher.Constraint("Coincident", 13, 1, 14, 1))
sketch7.addConstraint(Sketcher.Constraint("Coincident", 14, 2, 15, 1))
sketch7.addConstraint(Sketcher.Constraint("Coincident", 15, 2, 8, 1))
sketch7.addConstraint(Sketcher.Constraint("Vertical", 0))
sketch7.addConstraint(Sketcher.Constraint("Horizontal", 1))
sketch7.addConstraint(Sketcher.Constraint("Vertical", 2))
sketch7.addConstraint(Sketcher.Constraint("Horizontal", 8))
sketch7.addConstraint(Sketcher.Constraint("Vertical", 9))
sketch7.addConstraint(Sketcher.Constraint("Vertical", 15))
sketch7.addConstraint(Sketcher.Constraint("Coincident", 12, 3, 4, 3))
sketch7.addConstraint(Sketcher.Constraint("Equal", 4, 5))
sketch7.addConstraint(Sketcher.Constraint("Equal", 5, 12))
sketch7.addConstraint(Sketcher.Constraint("Equal", 12, 13))
sketch7.addConstraint(Sketcher.Constraint("PointOnObject", 0, 2, -1))
sketch7.addConstraint(Sketcher.Constraint("Parallel", 6, 7))
sketch7.addConstraint(Sketcher.Constraint("Parallel", 3, 10))
sketch7.addConstraint(Sketcher.Constraint("Parallel", 10, 11))
sketch7.addConstraint(Sketcher.Constraint("Parallel", 7, 14))
sketch7.addConstraint(Sketcher.Constraint("Horizontal", 3, 2, 5, 1))
sketch7.addConstraint(Sketcher.Constraint("Horizontal", 2, 2, 7, 2))
sketch7.addConstraint(Sketcher.Constraint("Horizontal", 11, 2, 13, 1))
sketch7.addConstraint(Sketcher.Constraint("Horizontal", 9, 2, 14, 2))
sketch7.addConstraint(Sketcher.Constraint("Vertical", 7, 2, 8, 2))
sketch7.addConstraint(Sketcher.Constraint("Vertical", 6, 2, 10, 2))
sketch7.addConstraint(Sketcher.Constraint("Vertical", 5, 1, 11, 2))
sketch7.addConstraint(Sketcher.Constraint("Vertical", 4, 1, 12, 1))
sketch7.addConstraint(Sketcher.Constraint("Vertical", 2, 2, 14, 2))
sketch7.addConstraint(Sketcher.Constraint("Equal", 2, 9))
sketch7.addConstraint(Sketcher.Constraint("Radius", 4, 2.0))
sketch7.addConstraint(Sketcher.Constraint("DistanceX", 1, 1, 1, 2, 12.0))
sketch7.addConstraint(Sketcher.Constraint("DistanceY", 0, 2, 0, 1, 0.3))
sketch7.addConstraint(Sketcher.Constraint("DistanceY", -1, 1, 4, 3, 8.0))
sketch7.addConstraint(Sketcher.Constraint("DistanceY", -1, 1, 6, 2, 2.0))
sketch7.addConstraint(Sketcher.Constraint("DistanceX", 4, 3, -1, 1, 6.8))
sketch7.addConstraint(Sketcher.Constraint("DistanceX", 4, 1, -1, 1, 7.1))
sketch7.addConstraint(Sketcher.Constraint("Distance", 7, 2.18859))
sketch7.setExpression("Constraints[41]", "Params.sketch7_radius")
sketch7.setExpression("Constraints[42]", "Params.sketch7_width")
sketch7.setExpression("Constraints[43]", "Params.sketch7_height")
pocket4 = body.newObject("PartDesign::Pocket", "Pocket003")
pocket4.Profile = sketch7
pocket4.setExpression("Length", "Params.pocket4_length")

# Sketch on XZ plane
sketch8 = body.newObject("Sketcher::SketchObject", "Sketch007")
sketch8.AttachmentSupport = (doc.getObject("XZ_Plane"), [""])
sketch8.MapMode = "FlatFace"
sketch8.addGeometry(Part.LineSegment(Vector(-12.8, 0.3, 0), Vector(-12.8, 0, 0)), False)
sketch8.addGeometry(Part.LineSegment(Vector(-12.8, 0, 0), Vector(-0.8, 0, 0)), False)
sketch8.addGeometry(Part.LineSegment(Vector(-0.8, 0, 0), Vector(-0.8, 0.3, 0)), False)
sketch8.addGeometry(Part.LineSegment(Vector(-0.8, 0.3, 0), Vector(-5.69279, 6.334441, 0)), False)
sketch8.addGeometry(Part.ArcOfCircle(Part.Circle(Vector(-6.8, 8, 0), Vector(0, 0, 1), 2), math.radians(-98.626927), math.radians(-56.38532)), False)
sketch8.addGeometry(Part.ArcOfCircle(Part.Circle(Vector(-6.8, 8, 0), Vector(0, 0, 1), 2), math.radians(-123.61468), math.radians(-98.626927)), False)
sketch8.addGeometry(Part.LineSegment(Vector(-7.90721, 6.334441, 0), Vector(-11.421622, 2, 0)), False)
sketch8.addGeometry(Part.LineSegment(Vector(-11.421622, 2, 0), Vector(-12.8, 0.3, 0)), False)
sketch8.addGeometry(Part.LineSegment(Vector(-0.8, 16, 0), Vector(-12.8, 16, 0)), False)
sketch8.addGeometry(Part.LineSegment(Vector(-12.8, 16, 0), Vector(-12.8, 15.7, 0)), False)
sketch8.addGeometry(Part.LineSegment(Vector(-12.8, 15.7, 0), Vector(-11.421622, 14, 0)), False)
sketch8.addGeometry(Part.LineSegment(Vector(-11.421622, 14, 0), Vector(-7.90721, 9.665559, 0)), False)
sketch8.addGeometry(Part.ArcOfCircle(Part.Circle(Vector(-6.8, 8, 0), Vector(0, 0, 1), 2), math.radians(98.626927), math.radians(123.61468)), False)
sketch8.addGeometry(Part.ArcOfCircle(Part.Circle(Vector(-6.8, 8, 0), Vector(0, 0, 1), 2), math.radians(56.38532), math.radians(98.626927)), False)
sketch8.addGeometry(Part.LineSegment(Vector(-5.69279, 9.665559, 0), Vector(-0.8, 15.7, 0)), False)
sketch8.addGeometry(Part.LineSegment(Vector(-0.8, 15.7, 0), Vector(-0.8, 16, 0)), False)
sketch8.addConstraint(Sketcher.Constraint("Coincident", 0, 2, 1, 1))
sketch8.addConstraint(Sketcher.Constraint("Coincident", 1, 2, 2, 1))
sketch8.addConstraint(Sketcher.Constraint("Coincident", 2, 2, 3, 1))
sketch8.addConstraint(Sketcher.Constraint("Coincident", 3, 2, 4, 2))
sketch8.addConstraint(Sketcher.Constraint("Tangent", 4, 1, 5, 2))
sketch8.addConstraint(Sketcher.Constraint("Coincident", 5, 1, 6, 1))
sketch8.addConstraint(Sketcher.Constraint("Coincident", 6, 2, 7, 1))
sketch8.addConstraint(Sketcher.Constraint("Coincident", 7, 2, 0, 1))
sketch8.addConstraint(Sketcher.Constraint("Coincident", 8, 2, 9, 1))
sketch8.addConstraint(Sketcher.Constraint("Coincident", 9, 2, 10, 1))
sketch8.addConstraint(Sketcher.Constraint("Coincident", 10, 2, 11, 1))
sketch8.addConstraint(Sketcher.Constraint("Coincident", 11, 2, 12, 2))
sketch8.addConstraint(Sketcher.Constraint("Tangent", 12, 1, 13, 2))
sketch8.addConstraint(Sketcher.Constraint("Coincident", 13, 1, 14, 1))
sketch8.addConstraint(Sketcher.Constraint("Coincident", 14, 2, 15, 1))
sketch8.addConstraint(Sketcher.Constraint("Coincident", 15, 2, 8, 1))
sketch8.addConstraint(Sketcher.Constraint("Vertical", 0))
sketch8.addConstraint(Sketcher.Constraint("Horizontal", 1))
sketch8.addConstraint(Sketcher.Constraint("Vertical", 2))
sketch8.addConstraint(Sketcher.Constraint("Horizontal", 8))
sketch8.addConstraint(Sketcher.Constraint("Vertical", 9))
sketch8.addConstraint(Sketcher.Constraint("Vertical", 15))
sketch8.addConstraint(Sketcher.Constraint("Coincident", 12, 3, 4, 3))
sketch8.addConstraint(Sketcher.Constraint("Equal", 4, 5))
sketch8.addConstraint(Sketcher.Constraint("Equal", 5, 12))
sketch8.addConstraint(Sketcher.Constraint("Equal", 12, 13))
sketch8.addConstraint(Sketcher.Constraint("PointOnObject", 0, 2, -1))
sketch8.addConstraint(Sketcher.Constraint("Parallel", 6, 7))
sketch8.addConstraint(Sketcher.Constraint("Parallel", 3, 10))
sketch8.addConstraint(Sketcher.Constraint("Parallel", 10, 11))
sketch8.addConstraint(Sketcher.Constraint("Parallel", 7, 14))
sketch8.addConstraint(Sketcher.Constraint("Horizontal", 3, 2, 5, 1))
sketch8.addConstraint(Sketcher.Constraint("Horizontal", 2, 2, 7, 2))
sketch8.addConstraint(Sketcher.Constraint("Horizontal", 11, 2, 13, 1))
sketch8.addConstraint(Sketcher.Constraint("Horizontal", 9, 2, 14, 2))
sketch8.addConstraint(Sketcher.Constraint("Vertical", 7, 2, 8, 2))
sketch8.addConstraint(Sketcher.Constraint("Vertical", 6, 2, 10, 2))
sketch8.addConstraint(Sketcher.Constraint("Vertical", 5, 1, 11, 2))
sketch8.addConstraint(Sketcher.Constraint("Vertical", 4, 1, 12, 1))
sketch8.addConstraint(Sketcher.Constraint("Vertical", 2, 2, 14, 2))
sketch8.addConstraint(Sketcher.Constraint("Equal", 2, 9))
sketch8.addConstraint(Sketcher.Constraint("Radius", 4, 2.0))
sketch8.addConstraint(Sketcher.Constraint("DistanceX", 1, 1, 1, 2, 12.0))
sketch8.addConstraint(Sketcher.Constraint("DistanceY", 0, 2, 0, 1, 0.3))
sketch8.addConstraint(Sketcher.Constraint("DistanceY", -1, 1, 4, 3, 8.0))
sketch8.addConstraint(Sketcher.Constraint("DistanceY", -1, 1, 6, 2, 2.0))
sketch8.addConstraint(Sketcher.Constraint("DistanceX", 4, 3, -1, 1, 6.8))
sketch8.addConstraint(Sketcher.Constraint("DistanceX", 4, 1, -1, 1, 7.1))
sketch8.addConstraint(Sketcher.Constraint("Distance", 7, 2.18859))
sketch8.setExpression("Constraints[41]", "Params.sketch8_radius")
sketch8.setExpression("Constraints[42]", "Params.sketch8_width")
sketch8.setExpression("Constraints[43]", "Params.sketch8_height")
pocket5 = body.newObject("PartDesign::Pocket", "Pocket004")
pocket5.Profile = sketch8
pocket5.setExpression("Length", "Params.pocket5_length")
pocket5.Reversed = True
doc.recompute()

fillet2 = body.newObject("PartDesign::Fillet", "Fillet001")
fillet2.Base = (pocket5, edges_at(pocket5, [
    (-14.8, 0, 33.2),
    (1.2, 0, 33.2),
    (-14.8, 0, -17.2),
    (1.2, 0, -17.2),
]))
fillet2.setExpression("Radius", "Params.fillet2_radius")

doc.recompute()
